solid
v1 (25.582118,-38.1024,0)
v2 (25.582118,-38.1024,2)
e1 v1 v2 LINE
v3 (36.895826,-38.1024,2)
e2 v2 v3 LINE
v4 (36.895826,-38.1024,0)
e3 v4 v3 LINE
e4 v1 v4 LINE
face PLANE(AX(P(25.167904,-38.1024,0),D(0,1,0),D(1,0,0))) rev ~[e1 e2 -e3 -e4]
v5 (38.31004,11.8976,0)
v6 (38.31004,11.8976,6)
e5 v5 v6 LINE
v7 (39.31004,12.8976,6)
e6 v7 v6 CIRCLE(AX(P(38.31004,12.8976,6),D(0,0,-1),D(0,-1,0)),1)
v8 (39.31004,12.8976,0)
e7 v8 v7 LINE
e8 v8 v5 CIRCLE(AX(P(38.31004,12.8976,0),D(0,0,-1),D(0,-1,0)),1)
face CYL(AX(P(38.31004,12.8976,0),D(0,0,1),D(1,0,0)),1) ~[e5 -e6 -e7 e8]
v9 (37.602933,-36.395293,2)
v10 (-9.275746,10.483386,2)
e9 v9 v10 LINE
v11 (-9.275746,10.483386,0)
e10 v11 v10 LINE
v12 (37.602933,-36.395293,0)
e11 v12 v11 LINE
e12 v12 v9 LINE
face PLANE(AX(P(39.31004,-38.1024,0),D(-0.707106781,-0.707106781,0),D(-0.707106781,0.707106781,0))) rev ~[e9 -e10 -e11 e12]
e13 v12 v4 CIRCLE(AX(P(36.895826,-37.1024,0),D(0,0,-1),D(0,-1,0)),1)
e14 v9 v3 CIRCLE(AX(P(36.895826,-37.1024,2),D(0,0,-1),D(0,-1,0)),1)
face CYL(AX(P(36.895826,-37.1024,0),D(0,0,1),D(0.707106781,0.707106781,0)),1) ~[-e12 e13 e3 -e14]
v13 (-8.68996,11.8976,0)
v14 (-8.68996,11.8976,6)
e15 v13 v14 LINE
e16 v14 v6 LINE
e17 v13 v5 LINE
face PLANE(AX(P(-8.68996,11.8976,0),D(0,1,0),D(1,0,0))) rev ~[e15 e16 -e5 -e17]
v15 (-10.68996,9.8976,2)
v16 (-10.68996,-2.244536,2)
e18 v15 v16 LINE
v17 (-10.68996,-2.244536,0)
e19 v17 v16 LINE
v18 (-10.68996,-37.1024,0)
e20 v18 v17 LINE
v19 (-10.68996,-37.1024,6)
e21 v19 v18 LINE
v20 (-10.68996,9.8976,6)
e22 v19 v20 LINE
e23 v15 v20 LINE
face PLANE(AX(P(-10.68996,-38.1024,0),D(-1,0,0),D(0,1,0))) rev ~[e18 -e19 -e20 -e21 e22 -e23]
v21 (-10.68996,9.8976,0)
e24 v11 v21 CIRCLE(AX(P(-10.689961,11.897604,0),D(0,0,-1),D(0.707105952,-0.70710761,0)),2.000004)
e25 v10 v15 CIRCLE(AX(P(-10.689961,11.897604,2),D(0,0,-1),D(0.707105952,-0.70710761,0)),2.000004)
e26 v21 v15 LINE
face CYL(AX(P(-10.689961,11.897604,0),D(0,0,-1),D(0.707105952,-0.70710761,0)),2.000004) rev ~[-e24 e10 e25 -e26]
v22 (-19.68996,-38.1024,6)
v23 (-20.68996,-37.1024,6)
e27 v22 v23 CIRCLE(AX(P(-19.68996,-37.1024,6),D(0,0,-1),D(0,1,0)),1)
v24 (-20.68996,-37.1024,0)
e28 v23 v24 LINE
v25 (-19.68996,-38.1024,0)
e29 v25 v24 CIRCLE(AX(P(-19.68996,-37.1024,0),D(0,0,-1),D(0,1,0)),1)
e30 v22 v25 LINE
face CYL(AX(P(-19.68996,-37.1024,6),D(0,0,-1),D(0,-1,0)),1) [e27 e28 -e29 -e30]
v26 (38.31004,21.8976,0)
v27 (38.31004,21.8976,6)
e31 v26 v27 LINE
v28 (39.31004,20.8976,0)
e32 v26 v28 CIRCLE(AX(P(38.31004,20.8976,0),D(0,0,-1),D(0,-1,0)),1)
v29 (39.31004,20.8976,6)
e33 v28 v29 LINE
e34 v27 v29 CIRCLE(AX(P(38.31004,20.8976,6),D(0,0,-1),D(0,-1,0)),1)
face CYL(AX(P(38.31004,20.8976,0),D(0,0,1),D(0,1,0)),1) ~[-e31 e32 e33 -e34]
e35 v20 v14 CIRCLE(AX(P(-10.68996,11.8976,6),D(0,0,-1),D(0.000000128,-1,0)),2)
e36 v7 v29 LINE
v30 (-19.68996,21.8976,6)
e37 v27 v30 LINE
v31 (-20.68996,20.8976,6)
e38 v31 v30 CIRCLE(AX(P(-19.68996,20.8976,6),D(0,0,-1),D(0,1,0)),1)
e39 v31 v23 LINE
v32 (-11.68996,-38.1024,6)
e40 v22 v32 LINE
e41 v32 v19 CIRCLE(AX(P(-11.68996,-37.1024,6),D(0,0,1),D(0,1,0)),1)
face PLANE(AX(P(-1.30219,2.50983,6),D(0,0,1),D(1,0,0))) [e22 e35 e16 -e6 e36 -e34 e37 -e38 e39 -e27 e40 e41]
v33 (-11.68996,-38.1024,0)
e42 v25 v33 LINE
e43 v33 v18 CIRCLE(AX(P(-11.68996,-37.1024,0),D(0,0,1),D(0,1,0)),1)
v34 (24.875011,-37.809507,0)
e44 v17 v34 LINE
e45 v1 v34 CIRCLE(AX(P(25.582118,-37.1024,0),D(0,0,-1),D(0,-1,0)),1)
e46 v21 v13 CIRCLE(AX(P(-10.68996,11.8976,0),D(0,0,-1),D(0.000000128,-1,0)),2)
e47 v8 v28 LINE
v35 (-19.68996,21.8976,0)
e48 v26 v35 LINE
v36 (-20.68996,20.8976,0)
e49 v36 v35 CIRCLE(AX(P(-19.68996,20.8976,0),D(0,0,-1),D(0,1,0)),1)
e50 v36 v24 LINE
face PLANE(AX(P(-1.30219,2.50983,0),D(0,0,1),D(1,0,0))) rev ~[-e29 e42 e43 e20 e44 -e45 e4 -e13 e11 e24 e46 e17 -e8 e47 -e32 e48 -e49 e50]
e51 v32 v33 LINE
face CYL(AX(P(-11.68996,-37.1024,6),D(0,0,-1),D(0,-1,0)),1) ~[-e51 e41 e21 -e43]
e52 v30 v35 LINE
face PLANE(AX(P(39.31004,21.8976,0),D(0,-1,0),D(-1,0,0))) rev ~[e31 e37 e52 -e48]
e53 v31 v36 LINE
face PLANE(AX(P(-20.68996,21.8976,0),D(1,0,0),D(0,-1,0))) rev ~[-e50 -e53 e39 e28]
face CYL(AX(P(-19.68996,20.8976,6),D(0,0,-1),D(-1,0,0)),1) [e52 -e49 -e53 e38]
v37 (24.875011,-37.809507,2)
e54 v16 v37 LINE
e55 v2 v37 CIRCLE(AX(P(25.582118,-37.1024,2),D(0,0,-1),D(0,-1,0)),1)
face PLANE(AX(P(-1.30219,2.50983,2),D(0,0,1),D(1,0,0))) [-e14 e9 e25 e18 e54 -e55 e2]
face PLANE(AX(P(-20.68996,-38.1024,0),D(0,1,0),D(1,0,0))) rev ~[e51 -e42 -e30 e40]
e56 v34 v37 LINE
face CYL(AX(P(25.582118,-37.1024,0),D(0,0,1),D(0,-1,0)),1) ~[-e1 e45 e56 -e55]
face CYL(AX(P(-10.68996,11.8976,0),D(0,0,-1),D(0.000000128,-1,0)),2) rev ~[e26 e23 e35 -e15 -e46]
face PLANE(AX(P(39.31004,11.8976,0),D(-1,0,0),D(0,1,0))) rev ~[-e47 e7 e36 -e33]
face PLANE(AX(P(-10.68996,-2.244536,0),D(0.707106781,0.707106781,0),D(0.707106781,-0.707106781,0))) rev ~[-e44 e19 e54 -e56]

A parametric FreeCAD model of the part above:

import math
import FreeCAD as App
import Part
import Sketcher
from FreeCAD import Vector
Q = App.Units.Quantity


def edges_at(feature, points):
    """Names of the edges that pass closest to the given points."""
    edges = feature.Shape.Edges
    near = lambda p: min(range(len(edges)), key=lambda i: edges[i].distToShape(Part.Vertex(*p))[0])
    return sorted({f"Edge{near(p) + 1}" for p in points})

doc = App.newDocument("Part")
body = doc.addObject("PartDesign::Body", "Body")

# Sketch on XY plane
sketch1 = body.newObject("Sketcher::SketchObject", "Sketch")
sketch1.AttachmentSupport = (doc.getObject("XY_Plane"), [""])
sketch1.MapMode = "FlatFace"
sketch1.addGeometry([
    Part.ArcOfCircle(Part.Circle(Vector(0, 0, 0), Vector(0, 0, 1), 2), math.radians(0), math.radians(270)),  # 0
    Part.LineSegment(Vector(2, 0, 0), Vector(50, 0, 0)),  # 1
    Part.LineSegment(Vector(50, 0, 0), Vector(50, 10, 0)),  # 2
    Part.LineSegment(Vector(50, 10, 0), Vector(-10, 10, 0)),  # 3
    Part.LineSegment(Vector(-10, 10, 0), Vector(-10, -50, 0)),  # 4
    Part.LineSegment(Vector(-10, -50, 0), Vector(0, -50, 0)),  # 5
    Part.LineSegment(Vector(0, -50, 0), Vector(0, -14.1, 0)),  # 6
    Part.LineSegment(Vector(0, -14.1, 0), Vector(35.9, -50, 0)),  # 7
    Part.LineSegment(Vector(35.9, -50, 0), Vector(50, -50, 0)),  # 8
    Part.LineSegment(Vector(50, -50, 0), Vector(1.4, -1.4, 0)),  # 9
    Part.ArcOfCircle(Part.Circle(Vector(0, 0, 0), Vector(0, 0, 1), 2), math.radians(-90), math.radians(-45)),  # 10
], False)
sketch1.addConstraint([
    Sketcher.Constraint("Coincident", 0, 1, 1, 1),
    Sketcher.Constraint("Coincident", 1, 2, 2, 1),
    Sketcher.Constraint("Coincident", 2, 2, 3, 1),
    Sketcher.Constraint("Coincident", 3, 2, 4, 1),
    Sketcher.Constraint("Coincident", 4, 2, 5, 1),
    Sketcher.Constraint("Coincident", 5, 2, 6, 1),
    Sketcher.Constraint("Coincident", 6, 2, 7, 1),
    Sketcher.Constraint("Coincident", 7, 2, 8, 1),
    Sketcher.Constraint("Coincident", 8, 2, 9, 1),
    Sketcher.Constraint("Coincident", 9, 2, 10, 2),
    Sketcher.Constraint("Tangent", 10, 1, 0, 2),
    Sketcher.Constraint("Horizontal", 1),
    Sketcher.Constraint("Vertical", 2),
    Sketcher.Constraint("Horizontal", 3),
    Sketcher.Constraint("Vertical", 4),
    Sketcher.Constraint("Horizontal", 5),
    Sketcher.Constraint("Vertical", 6),
    Sketcher.Constraint("Horizontal", 8),
    Sketcher.Constraint("Coincident", 0, 3, -1, 1),
    Sketcher.Constraint("PointOnObject", 0, 1, -1),
    Sketcher.Constraint("PointOnObject", 5, 2, -2),
    Sketcher.Constraint("PointOnObject", 10, 1, -2),
    Sketcher.Constraint("Parallel", 7, 9),
    Sketcher.Constraint("Horizontal", 5, 2, 7, 2),
    Sketcher.Constraint("Vertical", 2, 2, 8, 2),
    Sketcher.Constraint("Equal", 5, 2),
    Sketcher.Constraint("Equal", 3, 4),
    Sketcher.Constraint("Radius", 0, 2.0),
    Sketcher.Constraint("DistanceX", 1, 1, 1, 2, 48.0),
    Sketcher.Constraint("DistanceX", 3, 2, 3, 1, 60.0),
    Sketcher.Constraint("Angle", 7, Q("-45 deg")),
    Sketcher.Constraint("Radius", 10, 2.000004),
    Sketcher.Constraint("DistanceX", 8, 1, 8, 2, 14.142136),
])
pad1 = body.newObject("PartDesign::Pad", "Pad")
pad1.Profile = sketch1
pad1.Length = 2

# Sketch on XY plane
sketch2 = body.newObject("Sketcher::SketchObject", "Sketch001")
sketch2.AttachmentSupport = (doc.getObject("XY_Plane"), [""])
sketch2.MapMode = "FlatFace"
sketch2.addGeometry([
    Part.ArcOfCircle(Part.Circle(Vector(0, 0, 0), Vector(0, 0, 1), 2), math.radians(0), math.radians(270)),  # 0
    Part.LineSegment(Vector(2, 0, 0), Vector(50, 0, 0)),  # 1
    Part.LineSegment(Vector(50, 0, 0), Vector(50, 10, 0)),  # 2
    Part.LineSegment(Vector(50, 10, 0), Vector(-10, 10, 0)),  # 3
    Part.LineSegment(Vector(-10, 10, 0), Vector(-10, -50, 0)),  # 4
    Part.LineSegment(Vector(-10, -50, 0), Vector(0, -50, 0)),  # 5
    Part.LineSegment(Vector(0, -50, 0), Vector(0, -2, 0)),  # 6
], False)
sketch2.addConstraint([
    Sketcher.Constraint("Coincident", 0, 1, 1, 1),
    Sketcher.Constraint("Coincident", 1, 2, 2, 1),
    Sketcher.Constraint("Coincident", 2, 2, 3, 1),
    Sketcher.Constraint("Coincident", 3, 2, 4, 1),
    Sketcher.Constraint("Coincident", 4, 2, 5, 1),
    Sketcher.Constraint("Coincident", 5, 2, 6, 1),
    Sketcher.Constraint("Coincident", 6, 2, 0, 2),
    Sketcher.Constraint("Horizontal", 1),
    Sketcher.Constraint("Vertical", 2),
    Sketcher.Constraint("Horizontal", 3),
    Sketcher.Constraint("Vertical", 4),
    Sketcher.Constraint("Horizontal", 5),
    Sketcher.Constraint("Vertical", 6),
    Sketcher.Constraint("Coincident", 0, 3, -1, 1),
    Sketcher.Constraint("PointOnObject", 0, 1, -1),
    Sketcher.Constraint("PointOnObject", 5, 2, -2),
    Sketcher.Constraint("Equal", 5, 2),
    Sketcher.Constraint("Equal", 3, 4),
    Sketcher.Constraint("Radius", 0, 2.0),
    Sketcher.Constraint("DistanceX", 1, 1, 1, 2, 48.0),
    Sketcher.Constraint("DistanceX", 3, 2, 3, 1, 60.0),
])
pad2 = body.newObject("PartDesign::Pad", "Pad001")
pad2.Profile = sketch2
pad2.Length = 6
doc.recompute()

fillet = body.newObject("PartDesign::Fillet", "Fillet")
fillet.Base = (pad2, edges_at(pad2, [
    (-10, -50, 3),
    (0, -50, 3),
    (35.858, -50, 1),
    (50, 0, 3),
    (50, 10, 3),
    (-10, 10, 3),
    (50, -50, 1),
]))
fillet.Radius = 1
body2 = doc.addObject("PartDesign::Body", "Body001")
doc.recompute()

body.Placement = App.Placement(Vector(-10.68996, 11.8976, 0), App.Rotation(Vector(0, 0, 1), 0))
boolean = body2.newObject("PartDesign::Boolean", "Boolean")
boolean.Type = "Fuse"
boolean.addObjects([body])

doc.recompute()
